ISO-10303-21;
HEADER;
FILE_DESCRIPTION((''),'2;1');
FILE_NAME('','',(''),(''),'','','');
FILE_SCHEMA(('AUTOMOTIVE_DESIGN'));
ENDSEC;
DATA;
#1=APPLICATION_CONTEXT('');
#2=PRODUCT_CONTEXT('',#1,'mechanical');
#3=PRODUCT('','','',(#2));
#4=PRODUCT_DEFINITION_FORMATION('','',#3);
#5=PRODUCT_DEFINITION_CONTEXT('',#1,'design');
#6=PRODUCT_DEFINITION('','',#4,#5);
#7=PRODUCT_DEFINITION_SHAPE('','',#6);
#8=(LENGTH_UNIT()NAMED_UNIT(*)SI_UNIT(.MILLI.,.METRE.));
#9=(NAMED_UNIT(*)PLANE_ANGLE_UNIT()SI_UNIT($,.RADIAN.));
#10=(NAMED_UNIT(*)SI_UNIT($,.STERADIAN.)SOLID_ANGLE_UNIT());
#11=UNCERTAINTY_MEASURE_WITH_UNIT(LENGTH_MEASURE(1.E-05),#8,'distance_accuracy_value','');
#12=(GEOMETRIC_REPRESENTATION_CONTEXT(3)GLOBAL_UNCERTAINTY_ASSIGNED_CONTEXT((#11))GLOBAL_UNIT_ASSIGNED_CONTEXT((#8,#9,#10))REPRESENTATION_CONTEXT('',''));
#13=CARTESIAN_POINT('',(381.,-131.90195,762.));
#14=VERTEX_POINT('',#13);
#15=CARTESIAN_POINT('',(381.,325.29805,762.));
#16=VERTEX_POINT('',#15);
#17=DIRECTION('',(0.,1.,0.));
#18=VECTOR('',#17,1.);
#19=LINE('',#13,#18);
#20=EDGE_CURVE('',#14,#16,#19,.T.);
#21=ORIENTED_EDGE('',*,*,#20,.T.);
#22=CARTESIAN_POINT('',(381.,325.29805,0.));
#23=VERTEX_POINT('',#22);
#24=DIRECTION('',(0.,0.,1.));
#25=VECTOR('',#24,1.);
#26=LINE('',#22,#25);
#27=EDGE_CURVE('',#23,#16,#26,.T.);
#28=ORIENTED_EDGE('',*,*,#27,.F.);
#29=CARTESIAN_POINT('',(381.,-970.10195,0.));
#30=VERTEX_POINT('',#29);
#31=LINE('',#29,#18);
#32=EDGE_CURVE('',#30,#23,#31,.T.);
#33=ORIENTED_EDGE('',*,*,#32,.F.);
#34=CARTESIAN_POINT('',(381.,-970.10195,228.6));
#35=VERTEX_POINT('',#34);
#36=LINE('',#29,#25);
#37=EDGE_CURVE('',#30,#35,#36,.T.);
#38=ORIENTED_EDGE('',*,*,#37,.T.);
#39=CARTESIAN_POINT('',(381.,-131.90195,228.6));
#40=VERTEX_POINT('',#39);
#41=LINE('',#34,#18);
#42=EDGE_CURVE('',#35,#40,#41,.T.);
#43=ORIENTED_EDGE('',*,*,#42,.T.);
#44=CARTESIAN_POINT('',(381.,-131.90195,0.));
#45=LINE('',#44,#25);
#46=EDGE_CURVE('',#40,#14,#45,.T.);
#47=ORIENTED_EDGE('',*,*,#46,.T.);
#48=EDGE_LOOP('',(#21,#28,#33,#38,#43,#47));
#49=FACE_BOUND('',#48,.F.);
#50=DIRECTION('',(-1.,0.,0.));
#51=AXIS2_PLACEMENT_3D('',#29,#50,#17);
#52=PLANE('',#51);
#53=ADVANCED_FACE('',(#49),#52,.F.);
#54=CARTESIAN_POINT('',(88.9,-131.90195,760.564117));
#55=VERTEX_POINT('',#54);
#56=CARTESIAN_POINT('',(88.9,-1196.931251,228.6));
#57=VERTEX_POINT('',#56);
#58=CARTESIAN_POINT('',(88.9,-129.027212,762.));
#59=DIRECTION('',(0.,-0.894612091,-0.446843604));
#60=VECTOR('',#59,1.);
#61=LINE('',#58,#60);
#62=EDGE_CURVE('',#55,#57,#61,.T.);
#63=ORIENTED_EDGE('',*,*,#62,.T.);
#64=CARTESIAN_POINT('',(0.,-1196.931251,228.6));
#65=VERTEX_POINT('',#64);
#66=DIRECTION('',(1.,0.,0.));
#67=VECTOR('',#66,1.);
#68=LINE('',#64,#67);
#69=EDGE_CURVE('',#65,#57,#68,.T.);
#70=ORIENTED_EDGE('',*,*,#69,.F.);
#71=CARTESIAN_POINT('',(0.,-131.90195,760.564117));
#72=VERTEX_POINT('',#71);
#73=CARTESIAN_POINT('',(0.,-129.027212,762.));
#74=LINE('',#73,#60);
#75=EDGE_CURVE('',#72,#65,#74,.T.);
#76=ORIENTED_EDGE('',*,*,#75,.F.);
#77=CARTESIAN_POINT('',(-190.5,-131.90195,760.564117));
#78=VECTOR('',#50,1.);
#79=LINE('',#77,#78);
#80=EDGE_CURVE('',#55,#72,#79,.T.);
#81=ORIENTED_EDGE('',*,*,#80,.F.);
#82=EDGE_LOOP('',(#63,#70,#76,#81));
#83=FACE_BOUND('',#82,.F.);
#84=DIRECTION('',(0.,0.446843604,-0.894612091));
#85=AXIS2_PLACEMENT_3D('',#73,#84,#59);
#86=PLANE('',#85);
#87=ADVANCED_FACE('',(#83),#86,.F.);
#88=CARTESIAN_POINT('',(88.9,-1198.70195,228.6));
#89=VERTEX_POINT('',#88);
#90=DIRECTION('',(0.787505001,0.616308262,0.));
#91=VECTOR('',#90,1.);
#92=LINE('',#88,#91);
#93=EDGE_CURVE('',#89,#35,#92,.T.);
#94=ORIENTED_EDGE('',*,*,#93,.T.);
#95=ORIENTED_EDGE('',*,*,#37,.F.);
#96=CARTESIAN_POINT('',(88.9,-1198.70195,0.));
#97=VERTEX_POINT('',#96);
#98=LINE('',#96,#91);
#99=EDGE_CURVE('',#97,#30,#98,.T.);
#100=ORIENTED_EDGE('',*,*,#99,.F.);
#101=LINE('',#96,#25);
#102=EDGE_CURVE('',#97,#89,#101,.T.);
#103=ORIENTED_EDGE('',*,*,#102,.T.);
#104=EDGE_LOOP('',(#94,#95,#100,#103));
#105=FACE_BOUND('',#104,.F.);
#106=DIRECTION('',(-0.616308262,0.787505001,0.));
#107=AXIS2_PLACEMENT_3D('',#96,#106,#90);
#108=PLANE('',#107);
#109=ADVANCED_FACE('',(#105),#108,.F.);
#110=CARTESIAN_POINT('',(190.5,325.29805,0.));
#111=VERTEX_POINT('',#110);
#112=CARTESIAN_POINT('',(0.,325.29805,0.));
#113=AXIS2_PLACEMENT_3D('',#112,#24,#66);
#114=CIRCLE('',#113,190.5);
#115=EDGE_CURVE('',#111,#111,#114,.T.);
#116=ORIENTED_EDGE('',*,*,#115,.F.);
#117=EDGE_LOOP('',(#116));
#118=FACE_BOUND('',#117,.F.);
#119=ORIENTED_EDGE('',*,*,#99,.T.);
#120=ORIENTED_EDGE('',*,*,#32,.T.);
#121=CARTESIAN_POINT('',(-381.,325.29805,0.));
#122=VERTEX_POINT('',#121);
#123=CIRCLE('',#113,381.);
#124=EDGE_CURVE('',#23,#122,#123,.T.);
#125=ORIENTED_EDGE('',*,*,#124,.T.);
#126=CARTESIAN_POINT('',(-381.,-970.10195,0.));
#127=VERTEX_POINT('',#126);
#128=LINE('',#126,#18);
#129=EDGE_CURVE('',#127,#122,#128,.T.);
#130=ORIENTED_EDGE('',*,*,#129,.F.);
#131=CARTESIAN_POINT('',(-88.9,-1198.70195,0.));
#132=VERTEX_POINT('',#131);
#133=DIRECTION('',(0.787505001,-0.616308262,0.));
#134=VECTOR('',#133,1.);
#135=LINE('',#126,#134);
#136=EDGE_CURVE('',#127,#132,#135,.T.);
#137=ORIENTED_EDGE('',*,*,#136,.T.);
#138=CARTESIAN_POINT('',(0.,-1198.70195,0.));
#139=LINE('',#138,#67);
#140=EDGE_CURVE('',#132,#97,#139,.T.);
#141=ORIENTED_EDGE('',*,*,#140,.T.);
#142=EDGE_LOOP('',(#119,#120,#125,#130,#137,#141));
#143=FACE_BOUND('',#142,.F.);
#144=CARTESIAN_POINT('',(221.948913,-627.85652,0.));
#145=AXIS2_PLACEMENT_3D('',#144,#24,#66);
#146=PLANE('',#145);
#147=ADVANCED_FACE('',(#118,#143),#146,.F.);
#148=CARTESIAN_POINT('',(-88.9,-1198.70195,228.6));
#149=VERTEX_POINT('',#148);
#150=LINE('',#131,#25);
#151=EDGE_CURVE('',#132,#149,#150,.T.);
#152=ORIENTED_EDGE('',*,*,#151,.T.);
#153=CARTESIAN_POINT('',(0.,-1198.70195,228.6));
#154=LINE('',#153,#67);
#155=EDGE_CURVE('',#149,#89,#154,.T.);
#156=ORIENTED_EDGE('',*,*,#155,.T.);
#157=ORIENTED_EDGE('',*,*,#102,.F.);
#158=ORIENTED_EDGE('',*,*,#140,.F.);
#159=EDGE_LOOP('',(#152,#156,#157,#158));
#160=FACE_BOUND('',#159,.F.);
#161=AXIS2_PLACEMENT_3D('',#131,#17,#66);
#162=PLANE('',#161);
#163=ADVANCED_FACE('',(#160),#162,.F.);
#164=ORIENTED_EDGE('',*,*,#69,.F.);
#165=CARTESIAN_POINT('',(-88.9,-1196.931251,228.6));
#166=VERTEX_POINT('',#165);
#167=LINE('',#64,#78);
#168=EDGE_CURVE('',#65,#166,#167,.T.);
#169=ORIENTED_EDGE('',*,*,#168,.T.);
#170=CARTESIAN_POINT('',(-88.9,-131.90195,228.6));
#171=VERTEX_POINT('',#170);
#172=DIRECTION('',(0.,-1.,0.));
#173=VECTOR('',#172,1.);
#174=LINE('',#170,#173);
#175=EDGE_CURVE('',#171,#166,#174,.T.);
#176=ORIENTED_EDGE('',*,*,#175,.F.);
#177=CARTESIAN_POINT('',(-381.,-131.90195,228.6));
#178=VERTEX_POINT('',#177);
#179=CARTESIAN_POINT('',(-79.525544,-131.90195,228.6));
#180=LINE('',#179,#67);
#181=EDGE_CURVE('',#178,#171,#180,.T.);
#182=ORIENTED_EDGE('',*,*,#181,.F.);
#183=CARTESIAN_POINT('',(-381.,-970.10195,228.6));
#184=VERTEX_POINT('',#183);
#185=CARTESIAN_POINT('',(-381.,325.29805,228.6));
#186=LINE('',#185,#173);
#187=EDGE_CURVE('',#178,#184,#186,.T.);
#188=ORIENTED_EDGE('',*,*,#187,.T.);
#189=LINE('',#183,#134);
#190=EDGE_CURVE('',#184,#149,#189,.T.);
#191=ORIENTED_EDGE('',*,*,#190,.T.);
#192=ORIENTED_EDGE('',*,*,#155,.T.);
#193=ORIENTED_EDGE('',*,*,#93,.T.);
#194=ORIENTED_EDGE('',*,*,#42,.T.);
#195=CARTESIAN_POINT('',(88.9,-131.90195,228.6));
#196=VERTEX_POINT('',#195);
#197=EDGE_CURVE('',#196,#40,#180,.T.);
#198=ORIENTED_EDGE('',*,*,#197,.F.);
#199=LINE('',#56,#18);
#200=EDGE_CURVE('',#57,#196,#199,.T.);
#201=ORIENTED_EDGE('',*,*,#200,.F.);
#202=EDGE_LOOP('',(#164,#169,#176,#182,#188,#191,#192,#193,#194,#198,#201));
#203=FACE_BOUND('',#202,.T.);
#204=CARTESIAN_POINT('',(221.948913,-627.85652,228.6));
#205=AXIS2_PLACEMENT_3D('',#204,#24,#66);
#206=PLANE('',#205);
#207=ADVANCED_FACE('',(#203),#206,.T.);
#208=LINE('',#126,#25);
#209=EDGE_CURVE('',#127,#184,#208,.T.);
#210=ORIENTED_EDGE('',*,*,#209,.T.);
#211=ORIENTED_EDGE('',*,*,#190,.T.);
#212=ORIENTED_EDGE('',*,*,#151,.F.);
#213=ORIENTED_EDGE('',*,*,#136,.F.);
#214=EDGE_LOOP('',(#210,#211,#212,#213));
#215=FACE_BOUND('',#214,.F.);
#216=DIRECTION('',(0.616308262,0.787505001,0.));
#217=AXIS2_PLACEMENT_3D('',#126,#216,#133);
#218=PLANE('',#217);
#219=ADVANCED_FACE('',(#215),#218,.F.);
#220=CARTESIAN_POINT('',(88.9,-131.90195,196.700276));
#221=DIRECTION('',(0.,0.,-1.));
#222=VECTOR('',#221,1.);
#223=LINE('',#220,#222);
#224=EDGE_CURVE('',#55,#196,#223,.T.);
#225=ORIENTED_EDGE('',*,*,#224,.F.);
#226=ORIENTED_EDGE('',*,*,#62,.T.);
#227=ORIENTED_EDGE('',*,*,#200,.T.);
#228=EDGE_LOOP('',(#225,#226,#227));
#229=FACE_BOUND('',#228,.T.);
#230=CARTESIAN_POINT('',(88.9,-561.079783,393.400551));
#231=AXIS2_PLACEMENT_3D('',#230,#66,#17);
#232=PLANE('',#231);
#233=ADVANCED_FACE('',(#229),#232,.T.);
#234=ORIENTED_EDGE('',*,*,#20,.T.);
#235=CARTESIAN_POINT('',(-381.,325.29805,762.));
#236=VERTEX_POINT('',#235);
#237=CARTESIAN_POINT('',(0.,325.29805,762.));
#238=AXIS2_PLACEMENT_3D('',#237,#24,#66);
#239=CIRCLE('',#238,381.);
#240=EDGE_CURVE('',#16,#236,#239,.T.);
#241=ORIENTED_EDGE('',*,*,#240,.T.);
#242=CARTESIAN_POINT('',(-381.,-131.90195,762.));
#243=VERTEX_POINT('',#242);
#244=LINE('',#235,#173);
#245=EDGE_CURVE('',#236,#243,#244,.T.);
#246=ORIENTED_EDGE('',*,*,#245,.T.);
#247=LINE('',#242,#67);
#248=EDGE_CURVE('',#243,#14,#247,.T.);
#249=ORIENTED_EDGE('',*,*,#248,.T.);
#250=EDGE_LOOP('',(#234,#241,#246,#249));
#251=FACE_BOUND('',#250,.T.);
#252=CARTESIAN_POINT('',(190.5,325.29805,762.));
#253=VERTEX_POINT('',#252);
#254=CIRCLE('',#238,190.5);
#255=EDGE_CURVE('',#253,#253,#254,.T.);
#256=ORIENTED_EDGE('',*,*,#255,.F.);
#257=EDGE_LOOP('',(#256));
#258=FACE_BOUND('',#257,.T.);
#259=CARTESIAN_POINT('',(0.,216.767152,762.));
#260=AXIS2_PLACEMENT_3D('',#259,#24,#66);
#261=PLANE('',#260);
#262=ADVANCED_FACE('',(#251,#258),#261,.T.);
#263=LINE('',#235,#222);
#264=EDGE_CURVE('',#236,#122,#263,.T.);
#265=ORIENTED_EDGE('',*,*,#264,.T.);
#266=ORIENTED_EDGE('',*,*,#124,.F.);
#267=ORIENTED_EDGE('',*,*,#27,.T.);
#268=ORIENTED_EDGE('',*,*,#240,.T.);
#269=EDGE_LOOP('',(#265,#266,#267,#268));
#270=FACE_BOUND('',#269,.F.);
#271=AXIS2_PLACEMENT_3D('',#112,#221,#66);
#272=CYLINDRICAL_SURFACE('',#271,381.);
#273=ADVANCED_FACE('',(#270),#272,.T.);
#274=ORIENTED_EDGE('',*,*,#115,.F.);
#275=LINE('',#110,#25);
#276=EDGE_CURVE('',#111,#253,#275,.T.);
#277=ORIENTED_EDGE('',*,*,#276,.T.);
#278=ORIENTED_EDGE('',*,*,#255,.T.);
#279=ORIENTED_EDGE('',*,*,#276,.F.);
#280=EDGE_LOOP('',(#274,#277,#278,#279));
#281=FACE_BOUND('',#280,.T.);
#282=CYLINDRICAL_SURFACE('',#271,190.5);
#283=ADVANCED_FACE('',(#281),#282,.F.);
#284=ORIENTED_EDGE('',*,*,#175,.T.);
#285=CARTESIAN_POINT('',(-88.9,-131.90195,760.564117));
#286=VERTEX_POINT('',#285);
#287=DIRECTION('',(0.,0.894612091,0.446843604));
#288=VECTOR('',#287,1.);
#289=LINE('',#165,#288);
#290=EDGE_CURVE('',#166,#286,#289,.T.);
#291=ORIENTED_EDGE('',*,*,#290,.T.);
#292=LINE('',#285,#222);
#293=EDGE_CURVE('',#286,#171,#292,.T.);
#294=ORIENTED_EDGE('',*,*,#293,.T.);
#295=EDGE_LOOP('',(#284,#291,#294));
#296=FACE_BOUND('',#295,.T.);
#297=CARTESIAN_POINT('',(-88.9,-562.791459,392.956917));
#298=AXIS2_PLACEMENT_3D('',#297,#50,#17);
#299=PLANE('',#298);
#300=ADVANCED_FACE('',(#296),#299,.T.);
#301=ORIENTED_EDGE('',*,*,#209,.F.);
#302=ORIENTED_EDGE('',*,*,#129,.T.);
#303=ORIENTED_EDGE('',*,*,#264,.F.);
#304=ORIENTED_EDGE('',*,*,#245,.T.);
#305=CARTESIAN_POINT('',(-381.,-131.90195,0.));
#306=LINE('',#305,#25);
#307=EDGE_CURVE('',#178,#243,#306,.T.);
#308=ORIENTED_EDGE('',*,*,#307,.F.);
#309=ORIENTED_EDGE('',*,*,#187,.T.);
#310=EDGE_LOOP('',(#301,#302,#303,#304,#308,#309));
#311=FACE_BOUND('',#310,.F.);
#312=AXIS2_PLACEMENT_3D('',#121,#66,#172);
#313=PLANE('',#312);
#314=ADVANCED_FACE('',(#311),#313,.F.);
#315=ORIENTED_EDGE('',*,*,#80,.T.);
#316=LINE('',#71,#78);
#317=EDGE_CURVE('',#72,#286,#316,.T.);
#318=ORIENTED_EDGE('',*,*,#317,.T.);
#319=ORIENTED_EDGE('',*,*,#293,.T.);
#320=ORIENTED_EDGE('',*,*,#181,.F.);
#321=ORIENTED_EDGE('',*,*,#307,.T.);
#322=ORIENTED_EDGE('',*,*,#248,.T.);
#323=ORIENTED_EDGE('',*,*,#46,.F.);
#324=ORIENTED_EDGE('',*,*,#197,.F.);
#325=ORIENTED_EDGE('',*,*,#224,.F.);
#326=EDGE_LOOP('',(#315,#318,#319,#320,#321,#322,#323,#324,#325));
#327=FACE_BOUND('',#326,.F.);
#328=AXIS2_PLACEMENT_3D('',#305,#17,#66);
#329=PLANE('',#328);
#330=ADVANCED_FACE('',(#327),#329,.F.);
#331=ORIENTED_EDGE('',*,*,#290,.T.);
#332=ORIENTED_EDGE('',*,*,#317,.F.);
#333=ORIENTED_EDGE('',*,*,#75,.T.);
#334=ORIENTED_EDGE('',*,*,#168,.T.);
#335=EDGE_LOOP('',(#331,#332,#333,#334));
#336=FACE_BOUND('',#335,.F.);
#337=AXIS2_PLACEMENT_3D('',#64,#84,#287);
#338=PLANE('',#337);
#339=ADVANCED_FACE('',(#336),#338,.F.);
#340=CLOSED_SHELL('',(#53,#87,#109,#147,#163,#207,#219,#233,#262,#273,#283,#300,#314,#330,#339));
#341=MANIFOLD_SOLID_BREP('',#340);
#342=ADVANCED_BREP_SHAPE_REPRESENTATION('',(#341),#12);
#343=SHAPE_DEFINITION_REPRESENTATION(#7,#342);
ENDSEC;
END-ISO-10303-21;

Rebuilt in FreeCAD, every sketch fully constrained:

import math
import FreeCAD as App
import Part
import Sketcher

V = App.Vector
Q = App.Units.Quantity

doc = App.newDocument("Part")
params = doc.addObject("Spreadsheet::Sheet", "Params")
for row, (alias, value) in enumerate([
    ("sketch1_diameter", "15 in"),
    ("sketch1_radius", "15 in"),
    ("sketch1_height", "18 in"),
    ("pad1_length", "30 in"),
    ("sketch2_diameter", "15 in"),
    ("sketch2_radius", "15 in"),
    ("sketch2_width", "7 in"),
    ("sketch2_height", "51 in"),
    ("pad2_length", "9 in"),
    ("sketch3_height", "21 in"),
    ("pad3_length", "3.5 in"),
    ("pad4_length", "3.5 in"),
], start=1):
    params.set(f"A{row}", alias)
    params.set(f"B{row}", "=" + value)
    params.setAlias(f"B{row}", alias)

body = doc.addObject("PartDesign::Body", "Body")

# Sketch on XY plane
sketch1 = doc.addObject("Sketcher::SketchObject", "Sketch")
body.addObject(sketch1)
sketch1.AttachmentSupport = (doc.XY_Plane, [""])
sketch1.MapMode = "FlatFace"
sketch1.addGeometry([
    Part.LineSegment(V(381, -131.90195, 0), V(381, 325.29805, 0)),  # 0
    Part.ArcOfCircle(Part.Circle(V(0, 325.29805, 0), V(0, 0, 1), 381), math.radians(0), math.radians(180)),  # 1
    Part.LineSegment(V(-381, 325.29805, 0), V(-381, -131.90195, 0)),  # 2
    Part.LineSegment(V(-381, -131.90195, 0), V(381, -131.90195, 0)),  # 3
    Part.Circle(V(0, 325.29805, 0), V(0, 0, 1), 190.5),  # 4
], False)
sketch1.addConstraint([
    Sketcher.Constraint("Tangent", 0, 2, 1, 1),
    Sketcher.Constraint("Tangent", 1, 2, 2, 1),
    Sketcher.Constraint("Coincident", 2, 2, 3, 1),
    Sketcher.Constraint("Coincident", 3, 2, 0, 1),
    Sketcher.Constraint("Vertical", 0),
    Sketcher.Constraint("Vertical", 2),
    Sketcher.Constraint("Horizontal", 3),
    Sketcher.Constraint("Coincident", 4, 3, 1, 3),
    Sketcher.Constraint("PointOnObject", 1, 3, -2),
    Sketcher.Constraint("Diameter", 4, Q("15 in")),
    Sketcher.Constraint("Radius", 1, Q("15 in")),
    Sketcher.Constraint("DistanceY", 0, 1, 0, 2, Q("18 in")),
    Sketcher.Constraint("DistanceY", -1, 1, 1, 3, Q("325.29805 mm")),
])
sketch1.setExpression("Constraints[9]", "Params.sketch1_diameter")
sketch1.setExpression("Constraints[10]", "Params.sketch1_radius")
sketch1.setExpression("Constraints[11]", "Params.sketch1_height")
pad1 = doc.addObject("PartDesign::Pad", "Pad")
body.addObject(pad1)
pad1.Profile = sketch1
pad1.setExpression("Length", "Params.pad1_length")

# Sketch on XY plane
sketch2 = doc.addObject("Sketcher::SketchObject", "Sketch001")
body.addObject(sketch2)
sketch2.AttachmentSupport = (doc.XY_Plane, [""])
sketch2.MapMode = "FlatFace"
sketch2.addGeometry([
    Part.LineSegment(V(381, -970.10195, 0), V(381, 325.29805, 0)),  # 0
    Part.ArcOfCircle(Part.Circle(V(0, 325.29805, 0), V(0, 0, 1), 381), math.radians(0), math.radians(180)),  # 1
    Part.LineSegment(V(-381, 325.29805, 0), V(-381, -970.10195, 0)),  # 2
    Part.LineSegment(V(-381, -970.10195, 0), V(-88.9, -1198.70195, 0)),  # 3
    Part.LineSegment(V(-88.9, -1198.70195, 0), V(88.9, -1198.70195, 0)),  # 4
    Part.LineSegment(V(88.9, -1198.70195, 0), V(381, -970.10195, 0)),  # 5
    Part.Circle(V(0, 325.29805, 0), V(0, 0, 1), 190.5),  # 6
], False)
sketch2.addConstraint([
    Sketcher.Constraint("Tangent", 0, 2, 1, 1),
    Sketcher.Constraint("Tangent", 1, 2, 2, 1),
    Sketcher.Constraint("Coincident", 2, 2, 3, 1),
    Sketcher.Constraint("Coincident", 3, 2, 4, 1),
    Sketcher.Constraint("Coincident", 4, 2, 5, 1),
    Sketcher.Constraint("Coincident", 5, 2, 0, 1),
    Sketcher.Constraint("Vertical", 0),
    Sketcher.Constraint("Vertical", 2),
    Sketcher.Constraint("Horizontal", 4),
    Sketcher.Constraint("Coincident", 6, 3, 1, 3),
    Sketcher.Constraint("Symmetric", 2, 2, 5, 2, -2),
    Sketcher.Constraint("Equal", 3, 5),
    Sketcher.Constraint("Diameter", 6, Q("15 in")),
    Sketcher.Constraint("Radius", 1, Q("15 in")),
    Sketcher.Constraint("DistanceX", 4, 1, 4, 2, Q("7 in")),
    Sketcher.Constraint("DistanceY", 0, 1, 0, 2, Q("51 in")),
    Sketcher.Constraint("DistanceY", 3, 2, 2, 2, Q("9 in")),
    Sketcher.Constraint("DistanceY", -1, 1, 1, 3, Q("325.29805 mm")),
])
sketch2.setExpression("Constraints[12]", "Params.sketch2_diameter")
sketch2.setExpression("Constraints[13]", "Params.sketch2_radius")
sketch2.setExpression("Constraints[14]", "Params.sketch2_width")
sketch2.setExpression("Constraints[15]", "Params.sketch2_height")
pad2 = doc.addObject("PartDesign::Pad", "Pad001")
body.addObject(pad2)
pad2.Profile = sketch2
pad2.setExpression("Length", "Params.pad2_length")

# Sketch on YZ plane
sketch3 = doc.addObject("Sketcher::SketchObject", "Sketch002")
body.addObject(sketch3)
sketch3.AttachmentSupport = (doc.YZ_Plane, [""])
sketch3.MapMode = "FlatFace"
sketch3.addGeometry([
    Part.LineSegment(V(-129.027212, 762, 0), V(-1196.931251, 228.6, 0)),
    Part.LineSegment(V(-1196.931251, 228.6, 0), V(-129.027212, 228.6, 0)),
    Part.LineSegment(V(-129.027212, 228.6, 0), V(-129.027212, 762, 0)),
], False)
sketch3.addConstraint([
    Sketcher.Constraint("Coincident", 0, 2, 1, 1),
    Sketcher.Constraint("Coincident", 1, 2, 2, 1),
    Sketcher.Constraint("Coincident", 2, 2, 0, 1),
    Sketcher.Constraint("Horizontal", 1),
    Sketcher.Constraint("Vertical", 2),
    Sketcher.Constraint("DistanceY", 2, 1, 2, 2, Q("21 in")),
    Sketcher.Constraint("DistanceY", -1, 1, 0, 2, Q("9 in")),
    Sketcher.Constraint("DistanceX", 1, 1, 1, 2, Q("1067.904039 mm")),
    Sketcher.Constraint("DistanceX", 0, 2, -1, 1, Q("1196.931251 mm")),
])
sketch3.setExpression("Constraints[5]", "Params.sketch3_height")
pad3 = doc.addObject("PartDesign::Pad", "Pad002")
body.addObject(pad3)
pad3.Profile = sketch3
pad3.setExpression("Length", "Params.pad3_length")

# Sketch on YZ plane
sketch4 = doc.addObject("Sketcher::SketchObject", "Sketch003")
body.addObject(sketch4)
sketch4.AttachmentSupport = (doc.YZ_Plane, [""])
sketch4.MapMode = "FlatFace"
sketch4.addGeometry([
    Part.LineSegment(V(-1196.931251, 228.6, 0), V(-131.90195, 760.564117, 0)),
    Part.LineSegment(V(-131.90195, 760.564117, 0), V(-131.90195, 228.6, 0)),
    Part.LineSegment(V(-131.90195, 228.6, 0), V(-1196.931251, 228.6, 0)),
], False)
sketch4.addConstraint([
    Sketcher.Constraint("Coincident", 0, 2, 1, 1),
    Sketcher.Constraint("Coincident", 1, 2, 2, 1),
    Sketcher.Constraint("Coincident", 2, 2, 0, 1),
    Sketcher.Constraint("Vertical", 1),
    Sketcher.Constraint("Horizontal", 2),
    Sketcher.Constraint("DistanceY", -1, 1, 1, 2, Q("9 in")),
    Sketcher.Constraint("DistanceX", 2, 2, 2, 1, Q("1065.029301 mm")),
    Sketcher.Constraint("DistanceY", 1, 2, 1, 1, Q("531.964117 mm")),
    Sketcher.Constraint("DistanceX", 0, 2, -1, 1, Q("131.90195 mm")),
])
pad4 = doc.addObject("PartDesign::Pad", "Pad003")
body.addObject(pad4)
pad4.Profile = sketch4
pad4.setExpression("Length", "Params.pad4_length")
pad4.Reversed = True

doc.recompute()
